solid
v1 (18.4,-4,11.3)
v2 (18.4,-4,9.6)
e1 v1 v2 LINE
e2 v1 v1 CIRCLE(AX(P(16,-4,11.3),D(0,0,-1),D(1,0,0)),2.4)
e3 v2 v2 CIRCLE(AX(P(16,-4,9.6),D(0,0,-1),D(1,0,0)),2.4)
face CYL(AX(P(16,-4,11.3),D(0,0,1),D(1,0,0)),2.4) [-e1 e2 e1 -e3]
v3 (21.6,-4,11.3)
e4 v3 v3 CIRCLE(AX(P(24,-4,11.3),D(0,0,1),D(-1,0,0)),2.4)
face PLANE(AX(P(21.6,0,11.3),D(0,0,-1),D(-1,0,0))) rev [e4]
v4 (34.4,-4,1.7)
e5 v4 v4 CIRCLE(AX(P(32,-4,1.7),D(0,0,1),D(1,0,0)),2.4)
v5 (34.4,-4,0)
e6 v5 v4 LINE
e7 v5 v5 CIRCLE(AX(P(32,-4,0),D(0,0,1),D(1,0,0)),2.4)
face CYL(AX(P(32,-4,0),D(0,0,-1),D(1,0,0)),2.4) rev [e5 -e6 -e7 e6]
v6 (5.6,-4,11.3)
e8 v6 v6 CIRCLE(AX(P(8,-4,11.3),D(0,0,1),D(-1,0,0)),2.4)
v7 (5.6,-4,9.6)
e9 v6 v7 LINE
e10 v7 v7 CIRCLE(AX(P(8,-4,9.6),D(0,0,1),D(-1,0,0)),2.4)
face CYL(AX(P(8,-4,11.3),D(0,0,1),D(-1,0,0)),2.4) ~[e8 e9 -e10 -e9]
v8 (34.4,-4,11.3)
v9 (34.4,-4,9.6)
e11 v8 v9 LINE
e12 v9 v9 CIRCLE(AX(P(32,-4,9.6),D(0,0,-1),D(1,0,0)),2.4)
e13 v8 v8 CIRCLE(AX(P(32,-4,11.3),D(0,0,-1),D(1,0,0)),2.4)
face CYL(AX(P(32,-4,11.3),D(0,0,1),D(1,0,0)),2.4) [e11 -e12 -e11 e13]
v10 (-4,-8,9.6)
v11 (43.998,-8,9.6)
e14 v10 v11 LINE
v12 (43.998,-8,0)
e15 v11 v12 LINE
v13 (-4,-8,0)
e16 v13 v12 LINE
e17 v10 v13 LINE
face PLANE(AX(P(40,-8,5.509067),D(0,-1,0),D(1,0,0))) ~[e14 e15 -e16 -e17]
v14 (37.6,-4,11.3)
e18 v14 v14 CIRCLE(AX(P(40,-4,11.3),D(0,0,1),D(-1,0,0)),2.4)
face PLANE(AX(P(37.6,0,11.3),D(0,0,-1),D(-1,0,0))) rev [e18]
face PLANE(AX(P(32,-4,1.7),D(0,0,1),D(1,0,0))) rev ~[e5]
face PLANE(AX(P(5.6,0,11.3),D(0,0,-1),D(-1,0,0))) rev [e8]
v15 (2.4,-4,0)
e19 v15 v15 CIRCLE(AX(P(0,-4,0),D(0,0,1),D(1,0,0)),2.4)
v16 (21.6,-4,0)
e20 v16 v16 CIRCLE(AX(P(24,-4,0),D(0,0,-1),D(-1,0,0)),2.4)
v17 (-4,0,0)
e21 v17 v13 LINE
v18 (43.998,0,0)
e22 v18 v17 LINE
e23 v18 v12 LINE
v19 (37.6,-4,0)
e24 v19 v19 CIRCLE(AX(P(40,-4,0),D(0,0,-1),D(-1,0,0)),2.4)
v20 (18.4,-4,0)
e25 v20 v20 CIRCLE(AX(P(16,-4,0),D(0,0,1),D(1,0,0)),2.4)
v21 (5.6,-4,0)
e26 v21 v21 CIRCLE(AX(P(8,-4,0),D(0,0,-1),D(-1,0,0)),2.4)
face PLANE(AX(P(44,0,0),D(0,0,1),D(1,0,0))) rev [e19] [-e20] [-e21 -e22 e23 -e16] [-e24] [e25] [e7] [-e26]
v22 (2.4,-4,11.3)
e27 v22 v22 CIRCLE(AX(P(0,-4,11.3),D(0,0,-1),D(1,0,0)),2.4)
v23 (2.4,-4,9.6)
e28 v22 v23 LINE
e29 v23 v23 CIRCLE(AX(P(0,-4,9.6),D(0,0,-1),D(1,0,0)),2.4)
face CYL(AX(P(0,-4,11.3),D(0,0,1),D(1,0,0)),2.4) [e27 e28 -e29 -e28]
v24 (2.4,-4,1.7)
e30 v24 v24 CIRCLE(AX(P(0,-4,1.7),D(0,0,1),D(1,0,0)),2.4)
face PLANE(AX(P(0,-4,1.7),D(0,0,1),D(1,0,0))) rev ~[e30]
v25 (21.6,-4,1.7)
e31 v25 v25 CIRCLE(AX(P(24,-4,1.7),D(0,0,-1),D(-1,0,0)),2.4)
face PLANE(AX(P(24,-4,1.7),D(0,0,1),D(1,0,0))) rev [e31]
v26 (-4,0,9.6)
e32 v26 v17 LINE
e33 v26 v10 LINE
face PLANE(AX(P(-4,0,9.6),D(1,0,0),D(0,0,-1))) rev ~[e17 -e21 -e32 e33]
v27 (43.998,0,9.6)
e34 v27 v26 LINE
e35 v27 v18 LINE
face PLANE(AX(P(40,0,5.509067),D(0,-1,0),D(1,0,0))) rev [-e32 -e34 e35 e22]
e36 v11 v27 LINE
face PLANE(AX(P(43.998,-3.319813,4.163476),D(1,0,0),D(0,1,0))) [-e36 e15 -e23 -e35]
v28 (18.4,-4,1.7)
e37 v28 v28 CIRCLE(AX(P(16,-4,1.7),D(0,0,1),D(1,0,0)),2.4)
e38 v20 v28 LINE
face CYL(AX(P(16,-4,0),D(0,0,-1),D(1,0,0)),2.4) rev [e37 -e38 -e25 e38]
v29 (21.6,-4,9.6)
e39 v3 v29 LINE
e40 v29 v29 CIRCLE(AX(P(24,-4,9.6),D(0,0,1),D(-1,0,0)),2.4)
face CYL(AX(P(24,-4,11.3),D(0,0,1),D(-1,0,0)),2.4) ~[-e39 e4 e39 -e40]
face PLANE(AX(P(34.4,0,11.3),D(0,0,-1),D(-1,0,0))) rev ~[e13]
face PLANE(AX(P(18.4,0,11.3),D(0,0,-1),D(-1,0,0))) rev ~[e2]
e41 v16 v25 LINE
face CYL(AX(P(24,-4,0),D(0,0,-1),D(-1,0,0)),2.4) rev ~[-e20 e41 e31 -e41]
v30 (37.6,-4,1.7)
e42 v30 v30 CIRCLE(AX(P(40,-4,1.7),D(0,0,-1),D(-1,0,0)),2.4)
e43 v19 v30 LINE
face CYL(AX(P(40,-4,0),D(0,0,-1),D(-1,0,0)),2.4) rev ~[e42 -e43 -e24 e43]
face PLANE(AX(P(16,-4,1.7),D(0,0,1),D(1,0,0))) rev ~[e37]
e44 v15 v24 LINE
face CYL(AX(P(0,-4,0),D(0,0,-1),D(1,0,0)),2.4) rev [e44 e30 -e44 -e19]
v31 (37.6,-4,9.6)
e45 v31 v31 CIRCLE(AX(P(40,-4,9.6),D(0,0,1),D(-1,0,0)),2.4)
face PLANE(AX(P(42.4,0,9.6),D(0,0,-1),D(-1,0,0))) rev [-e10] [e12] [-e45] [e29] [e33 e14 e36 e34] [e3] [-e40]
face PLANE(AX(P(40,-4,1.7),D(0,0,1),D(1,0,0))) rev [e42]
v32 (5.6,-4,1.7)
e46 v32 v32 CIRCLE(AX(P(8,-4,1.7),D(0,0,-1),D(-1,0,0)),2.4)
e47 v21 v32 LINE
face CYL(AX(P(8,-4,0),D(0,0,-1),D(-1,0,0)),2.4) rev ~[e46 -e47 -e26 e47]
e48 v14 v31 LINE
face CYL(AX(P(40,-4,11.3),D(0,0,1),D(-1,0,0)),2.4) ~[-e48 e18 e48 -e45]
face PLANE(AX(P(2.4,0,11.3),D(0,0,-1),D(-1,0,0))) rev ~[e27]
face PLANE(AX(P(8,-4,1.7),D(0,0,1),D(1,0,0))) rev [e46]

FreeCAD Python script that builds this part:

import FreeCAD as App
import Part
import Sketcher

V = App.Vector


def add_polygon(sketch, points):
    """Adds a closed chain of lines whose ends are joined by coincident constraints."""
    first, n = sketch.GeometryCount, len(points)
    for a, b in zip(points, points[1:] + points[:1]):
        sketch.addGeometry(Part.LineSegment(App.Vector(*a, 0), App.Vector(*b, 0)), False)
    for i in range(n):
        sketch.addConstraint(Sketcher.Constraint("Coincident", first + i, 2, first + (i + 1) % n, 1))

doc = App.newDocument("Part")
params = doc.addObject("Spreadsheet::Sheet", "Params")
for row, (alias, value) in enumerate([
    ("sketch1_width", "8 mm"),
    ("sketch1_width2", "1.6 mm"),
    ("sketch1_height", "9.6 mm"),
    ("sketch1_height2", "1.7 mm"),
    ("pad1_length", "8 mm"),
    ("sketch2_diameter", "4.8 mm"),
    ("sketch2_width", "8 mm"),
    ("pocket1_length", "1.7 mm"),
    ("sketch3_diameter", "4.8 mm"),
    ("pocket2_length", "1.7 mm"),
    ("pocket3_length", "16.002 mm"),
], start=1):
    params.set(f"A{row}", alias)
    params.set(f"B{row}", "=" + value)
    params.setAlias(f"B{row}", alias)

body = doc.addObject("PartDesign::Body", "Body")

# Sketch on XZ plane
sketch1 = doc.addObject("Sketcher::SketchObject", "Sketch")
body.addObject(sketch1)
sketch1.AttachmentSupport = (doc.XZ_Plane, [""])
sketch1.MapMode = "FlatFace"
add_polygon(sketch1, [(-2.4, 9.6), (-4, 9.6), (-4, 0), (4, 0), (4, 9.6), (2.4, 9.6), (2.4, 11.3), (-2.4, 11.3)])  # lines 0-7
sketch1.addConstraint([
    Sketcher.Constraint("Horizontal", 0),
    Sketcher.Constraint("Vertical", 1),
    Sketcher.Constraint("Horizontal", 2),
    Sketcher.Constraint("Vertical", 3),
    Sketcher.Constraint("Horizontal", 4),
    Sketcher.Constraint("Vertical", 5),
    Sketcher.Constraint("Horizontal", 6),
    Sketcher.Constraint("Vertical", 7),
    Sketcher.Constraint("Symmetric", 1, 2, 2, 2, -1, 1),
    Sketcher.Constraint("Symmetric", 4, 2, 7, 2, -2),
    Sketcher.Constraint("DistanceX", 2, 1, 2, 2, 8.0),
    Sketcher.Constraint("DistanceX", 0, 2, 0, 1, 1.6),
    Sketcher.Constraint("DistanceY", 1, 2, 1, 1, 9.6),
    Sketcher.Constraint("DistanceY", 5, 1, 5, 2, 1.7),
])
sketch1.setExpression("Constraints[18]", "Params.sketch1_width")
sketch1.setExpression("Constraints[19]", "Params.sketch1_width2")
sketch1.setExpression("Constraints[20]", "Params.sketch1_height")
sketch1.setExpression("Constraints[21]", "Params.sketch1_height2")
pad1 = doc.addObject("PartDesign::Pad", "Pad")
body.addObject(pad1)
pad1.Profile = sketch1
pad1.setExpression("Length", "Params.pad1_length")

# Sketch on XY plane
sketch2 = doc.addObject("Sketcher::SketchObject", "Sketch001")
body.addObject(sketch2)
sketch2.AttachmentSupport = (doc.XY_Plane, [""])
sketch2.MapMode = "FlatFace"
sketch2.AttachmentOffset = App.Placement(V(0, 0, 11.3), App.Rotation())
add_polygon(sketch2, [(-4, 0), (-4, -8), (4, -8), (4, 0)])  # lines 0-3
sketch2.addGeometry(Part.Circle(V(0, -4, 0), V(0, 0, 1), 2.4), False)  # 4
sketch2.addConstraint([
    Sketcher.Constraint("Vertical", 0),
    Sketcher.Constraint("Horizontal", 1),
    Sketcher.Constraint("Vertical", 2),
    Sketcher.Constraint("Horizontal", 3),
    Sketcher.Constraint("Symmetric", 2, 2, 3, 2, -1, 1),
    Sketcher.Constraint("PointOnObject", 4, 3, -2),
    Sketcher.Constraint("Equal", 3, 0),
    Sketcher.Constraint("Diameter", 4, 4.8),
    Sketcher.Constraint("DistanceX", 1, 1, 1, 2, 8.0),
    Sketcher.Constraint("DistanceY", 4, 3, -1, 1, 4.0),
])
sketch2.setExpression("Constraints[11]", "Params.sketch2_diameter")
sketch2.setExpression("Constraints[12]", "Params.sketch2_width")
pocket1 = doc.addObject("PartDesign::Pocket", "Pocket")
body.addObject(pocket1)
pocket1.Profile = sketch2
pocket1.setExpression("Length", "Params.pocket1_length")

# Sketch on XY plane
sketch3 = doc.addObject("Sketcher::SketchObject", "Sketch002")
body.addObject(sketch3)
sketch3.AttachmentSupport = (doc.XY_Plane, [""])
sketch3.MapMode = "FlatFace"
sketch3.addGeometry(Part.Circle(V(0, -4, 0), V(0, 0, 1), 2.4), False)
sketch3.addConstraint([
    Sketcher.Constraint("PointOnObject", 0, 3, -2),
    Sketcher.Constraint("Diameter", 0, 4.8),
    Sketcher.Constraint("DistanceY", 0, 3, -1, 1, 4.0),
])
sketch3.setExpression("Constraints[1]", "Params.sketch3_diameter")
pocket2 = doc.addObject("PartDesign::Pocket", "Pocket001")
body.addObject(pocket2)
pocket2.Profile = sketch3
pocket2.setExpression("Length", "Params.pocket2_length")
pocket2.Reversed = True
body2 = doc.addObject("PartDesign::Body", "Body001")
doc.recompute()

body2.BaseFeature = body
doc.recompute()

mirroring = doc.addObject("Part::Mirroring", "Mirroring")
mirroring.Source = body
mirroring.Base = V(4, 0, 0)
mirroring.Normal = V(1, 0, 0)
body3 = doc.addObject("PartDesign::Body", "Body002")
body3.BaseFeature = mirroring
boolean = doc.addObject("PartDesign::Boolean", "Boolean")
body2.addObject(boolean)
boolean.Type = "Fuse"
boolean.addObjects([body3])
doc.recompute()
body4 = doc.addObject("PartDesign::Body", "Body003")
doc.recompute()

body4.BaseFeature = body2
doc.recompute()

mirroring2 = doc.addObject("Part::Mirroring", "Mirroring001")
mirroring2.Source = body2
mirroring2.Base = V(12, 0, 0)
mirroring2.Normal = V(1, 0, 0)
body5 = doc.addObject("PartDesign::Body", "Body004")
body5.BaseFeature = mirroring2
boolean2 = doc.addObject("PartDesign::Boolean", "Boolean001")
body4.addObject(boolean2)
boolean2.Type = "Fuse"
boolean2.addObjects([body5])
doc.recompute()
body6 = doc.addObject("PartDesign::Body", "Body005")
doc.recompute()

body6.BaseFeature = body4
doc.recompute()

mirroring3 = doc.addObject("Part::Mirroring", "Mirroring002")
mirroring3.Source = body4
mirroring3.Base = V(28, 0, 0)
mirroring3.Normal = V(1, 0, 0)
body7 = doc.addObject("PartDesign::Body", "Body006")
body7.BaseFeature = mirroring3
boolean3 = doc.addObject("PartDesign::Boolean", "Boolean002")
body6.addObject(boolean3)
boolean3.Type = "Fuse"
boolean3.addObjects([body7])
doc.recompute()

# Sketch on YZ plane
sketch4 = doc.addObject("Sketcher::SketchObject", "Sketch003")
body6.addObject(sketch4)
sketch4.AttachmentSupport = (doc.getObject("YZ_Plane005"), [""])
sketch4.MapMode = "FlatFace"
sketch4.AttachmentOffset = App.Placement(V(0, 0, 60), App.Rotation())
add_polygon(sketch4, [(-15, 20), (-15, -11), (8, -11), (8, 20)])  # lines 0-3
sketch4.addConstraint([
    Sketcher.Constraint("Vertical", 0),
    Sketcher.Constraint("Horizontal", 1),
    Sketcher.Constraint("Vertical", 2),
    Sketcher.Constraint("Horizontal", 3),
    Sketcher.Constraint("DistanceX", 1, 1, 1, 2, 22.942849),
    Sketcher.Constraint("DistanceY", 0, 2, 0, 1, 31.05308),
    Sketcher.Constraint("DistanceX", -1, 1, 1, 2, 8.151611),
    Sketcher.Constraint("DistanceY", 0, 2, -1, 1, 11.363064),
])
pocket3 = doc.addObject("PartDesign::Pocket", "Pocket002")
body6.addObject(pocket3)
pocket3.Profile = sketch4
pocket3.setExpression("Length", "Params.pocket3_length")
mirroring.Visibility = False
mirroring2.Visibility = False
mirroring3.Visibility = False

doc.recompute()
